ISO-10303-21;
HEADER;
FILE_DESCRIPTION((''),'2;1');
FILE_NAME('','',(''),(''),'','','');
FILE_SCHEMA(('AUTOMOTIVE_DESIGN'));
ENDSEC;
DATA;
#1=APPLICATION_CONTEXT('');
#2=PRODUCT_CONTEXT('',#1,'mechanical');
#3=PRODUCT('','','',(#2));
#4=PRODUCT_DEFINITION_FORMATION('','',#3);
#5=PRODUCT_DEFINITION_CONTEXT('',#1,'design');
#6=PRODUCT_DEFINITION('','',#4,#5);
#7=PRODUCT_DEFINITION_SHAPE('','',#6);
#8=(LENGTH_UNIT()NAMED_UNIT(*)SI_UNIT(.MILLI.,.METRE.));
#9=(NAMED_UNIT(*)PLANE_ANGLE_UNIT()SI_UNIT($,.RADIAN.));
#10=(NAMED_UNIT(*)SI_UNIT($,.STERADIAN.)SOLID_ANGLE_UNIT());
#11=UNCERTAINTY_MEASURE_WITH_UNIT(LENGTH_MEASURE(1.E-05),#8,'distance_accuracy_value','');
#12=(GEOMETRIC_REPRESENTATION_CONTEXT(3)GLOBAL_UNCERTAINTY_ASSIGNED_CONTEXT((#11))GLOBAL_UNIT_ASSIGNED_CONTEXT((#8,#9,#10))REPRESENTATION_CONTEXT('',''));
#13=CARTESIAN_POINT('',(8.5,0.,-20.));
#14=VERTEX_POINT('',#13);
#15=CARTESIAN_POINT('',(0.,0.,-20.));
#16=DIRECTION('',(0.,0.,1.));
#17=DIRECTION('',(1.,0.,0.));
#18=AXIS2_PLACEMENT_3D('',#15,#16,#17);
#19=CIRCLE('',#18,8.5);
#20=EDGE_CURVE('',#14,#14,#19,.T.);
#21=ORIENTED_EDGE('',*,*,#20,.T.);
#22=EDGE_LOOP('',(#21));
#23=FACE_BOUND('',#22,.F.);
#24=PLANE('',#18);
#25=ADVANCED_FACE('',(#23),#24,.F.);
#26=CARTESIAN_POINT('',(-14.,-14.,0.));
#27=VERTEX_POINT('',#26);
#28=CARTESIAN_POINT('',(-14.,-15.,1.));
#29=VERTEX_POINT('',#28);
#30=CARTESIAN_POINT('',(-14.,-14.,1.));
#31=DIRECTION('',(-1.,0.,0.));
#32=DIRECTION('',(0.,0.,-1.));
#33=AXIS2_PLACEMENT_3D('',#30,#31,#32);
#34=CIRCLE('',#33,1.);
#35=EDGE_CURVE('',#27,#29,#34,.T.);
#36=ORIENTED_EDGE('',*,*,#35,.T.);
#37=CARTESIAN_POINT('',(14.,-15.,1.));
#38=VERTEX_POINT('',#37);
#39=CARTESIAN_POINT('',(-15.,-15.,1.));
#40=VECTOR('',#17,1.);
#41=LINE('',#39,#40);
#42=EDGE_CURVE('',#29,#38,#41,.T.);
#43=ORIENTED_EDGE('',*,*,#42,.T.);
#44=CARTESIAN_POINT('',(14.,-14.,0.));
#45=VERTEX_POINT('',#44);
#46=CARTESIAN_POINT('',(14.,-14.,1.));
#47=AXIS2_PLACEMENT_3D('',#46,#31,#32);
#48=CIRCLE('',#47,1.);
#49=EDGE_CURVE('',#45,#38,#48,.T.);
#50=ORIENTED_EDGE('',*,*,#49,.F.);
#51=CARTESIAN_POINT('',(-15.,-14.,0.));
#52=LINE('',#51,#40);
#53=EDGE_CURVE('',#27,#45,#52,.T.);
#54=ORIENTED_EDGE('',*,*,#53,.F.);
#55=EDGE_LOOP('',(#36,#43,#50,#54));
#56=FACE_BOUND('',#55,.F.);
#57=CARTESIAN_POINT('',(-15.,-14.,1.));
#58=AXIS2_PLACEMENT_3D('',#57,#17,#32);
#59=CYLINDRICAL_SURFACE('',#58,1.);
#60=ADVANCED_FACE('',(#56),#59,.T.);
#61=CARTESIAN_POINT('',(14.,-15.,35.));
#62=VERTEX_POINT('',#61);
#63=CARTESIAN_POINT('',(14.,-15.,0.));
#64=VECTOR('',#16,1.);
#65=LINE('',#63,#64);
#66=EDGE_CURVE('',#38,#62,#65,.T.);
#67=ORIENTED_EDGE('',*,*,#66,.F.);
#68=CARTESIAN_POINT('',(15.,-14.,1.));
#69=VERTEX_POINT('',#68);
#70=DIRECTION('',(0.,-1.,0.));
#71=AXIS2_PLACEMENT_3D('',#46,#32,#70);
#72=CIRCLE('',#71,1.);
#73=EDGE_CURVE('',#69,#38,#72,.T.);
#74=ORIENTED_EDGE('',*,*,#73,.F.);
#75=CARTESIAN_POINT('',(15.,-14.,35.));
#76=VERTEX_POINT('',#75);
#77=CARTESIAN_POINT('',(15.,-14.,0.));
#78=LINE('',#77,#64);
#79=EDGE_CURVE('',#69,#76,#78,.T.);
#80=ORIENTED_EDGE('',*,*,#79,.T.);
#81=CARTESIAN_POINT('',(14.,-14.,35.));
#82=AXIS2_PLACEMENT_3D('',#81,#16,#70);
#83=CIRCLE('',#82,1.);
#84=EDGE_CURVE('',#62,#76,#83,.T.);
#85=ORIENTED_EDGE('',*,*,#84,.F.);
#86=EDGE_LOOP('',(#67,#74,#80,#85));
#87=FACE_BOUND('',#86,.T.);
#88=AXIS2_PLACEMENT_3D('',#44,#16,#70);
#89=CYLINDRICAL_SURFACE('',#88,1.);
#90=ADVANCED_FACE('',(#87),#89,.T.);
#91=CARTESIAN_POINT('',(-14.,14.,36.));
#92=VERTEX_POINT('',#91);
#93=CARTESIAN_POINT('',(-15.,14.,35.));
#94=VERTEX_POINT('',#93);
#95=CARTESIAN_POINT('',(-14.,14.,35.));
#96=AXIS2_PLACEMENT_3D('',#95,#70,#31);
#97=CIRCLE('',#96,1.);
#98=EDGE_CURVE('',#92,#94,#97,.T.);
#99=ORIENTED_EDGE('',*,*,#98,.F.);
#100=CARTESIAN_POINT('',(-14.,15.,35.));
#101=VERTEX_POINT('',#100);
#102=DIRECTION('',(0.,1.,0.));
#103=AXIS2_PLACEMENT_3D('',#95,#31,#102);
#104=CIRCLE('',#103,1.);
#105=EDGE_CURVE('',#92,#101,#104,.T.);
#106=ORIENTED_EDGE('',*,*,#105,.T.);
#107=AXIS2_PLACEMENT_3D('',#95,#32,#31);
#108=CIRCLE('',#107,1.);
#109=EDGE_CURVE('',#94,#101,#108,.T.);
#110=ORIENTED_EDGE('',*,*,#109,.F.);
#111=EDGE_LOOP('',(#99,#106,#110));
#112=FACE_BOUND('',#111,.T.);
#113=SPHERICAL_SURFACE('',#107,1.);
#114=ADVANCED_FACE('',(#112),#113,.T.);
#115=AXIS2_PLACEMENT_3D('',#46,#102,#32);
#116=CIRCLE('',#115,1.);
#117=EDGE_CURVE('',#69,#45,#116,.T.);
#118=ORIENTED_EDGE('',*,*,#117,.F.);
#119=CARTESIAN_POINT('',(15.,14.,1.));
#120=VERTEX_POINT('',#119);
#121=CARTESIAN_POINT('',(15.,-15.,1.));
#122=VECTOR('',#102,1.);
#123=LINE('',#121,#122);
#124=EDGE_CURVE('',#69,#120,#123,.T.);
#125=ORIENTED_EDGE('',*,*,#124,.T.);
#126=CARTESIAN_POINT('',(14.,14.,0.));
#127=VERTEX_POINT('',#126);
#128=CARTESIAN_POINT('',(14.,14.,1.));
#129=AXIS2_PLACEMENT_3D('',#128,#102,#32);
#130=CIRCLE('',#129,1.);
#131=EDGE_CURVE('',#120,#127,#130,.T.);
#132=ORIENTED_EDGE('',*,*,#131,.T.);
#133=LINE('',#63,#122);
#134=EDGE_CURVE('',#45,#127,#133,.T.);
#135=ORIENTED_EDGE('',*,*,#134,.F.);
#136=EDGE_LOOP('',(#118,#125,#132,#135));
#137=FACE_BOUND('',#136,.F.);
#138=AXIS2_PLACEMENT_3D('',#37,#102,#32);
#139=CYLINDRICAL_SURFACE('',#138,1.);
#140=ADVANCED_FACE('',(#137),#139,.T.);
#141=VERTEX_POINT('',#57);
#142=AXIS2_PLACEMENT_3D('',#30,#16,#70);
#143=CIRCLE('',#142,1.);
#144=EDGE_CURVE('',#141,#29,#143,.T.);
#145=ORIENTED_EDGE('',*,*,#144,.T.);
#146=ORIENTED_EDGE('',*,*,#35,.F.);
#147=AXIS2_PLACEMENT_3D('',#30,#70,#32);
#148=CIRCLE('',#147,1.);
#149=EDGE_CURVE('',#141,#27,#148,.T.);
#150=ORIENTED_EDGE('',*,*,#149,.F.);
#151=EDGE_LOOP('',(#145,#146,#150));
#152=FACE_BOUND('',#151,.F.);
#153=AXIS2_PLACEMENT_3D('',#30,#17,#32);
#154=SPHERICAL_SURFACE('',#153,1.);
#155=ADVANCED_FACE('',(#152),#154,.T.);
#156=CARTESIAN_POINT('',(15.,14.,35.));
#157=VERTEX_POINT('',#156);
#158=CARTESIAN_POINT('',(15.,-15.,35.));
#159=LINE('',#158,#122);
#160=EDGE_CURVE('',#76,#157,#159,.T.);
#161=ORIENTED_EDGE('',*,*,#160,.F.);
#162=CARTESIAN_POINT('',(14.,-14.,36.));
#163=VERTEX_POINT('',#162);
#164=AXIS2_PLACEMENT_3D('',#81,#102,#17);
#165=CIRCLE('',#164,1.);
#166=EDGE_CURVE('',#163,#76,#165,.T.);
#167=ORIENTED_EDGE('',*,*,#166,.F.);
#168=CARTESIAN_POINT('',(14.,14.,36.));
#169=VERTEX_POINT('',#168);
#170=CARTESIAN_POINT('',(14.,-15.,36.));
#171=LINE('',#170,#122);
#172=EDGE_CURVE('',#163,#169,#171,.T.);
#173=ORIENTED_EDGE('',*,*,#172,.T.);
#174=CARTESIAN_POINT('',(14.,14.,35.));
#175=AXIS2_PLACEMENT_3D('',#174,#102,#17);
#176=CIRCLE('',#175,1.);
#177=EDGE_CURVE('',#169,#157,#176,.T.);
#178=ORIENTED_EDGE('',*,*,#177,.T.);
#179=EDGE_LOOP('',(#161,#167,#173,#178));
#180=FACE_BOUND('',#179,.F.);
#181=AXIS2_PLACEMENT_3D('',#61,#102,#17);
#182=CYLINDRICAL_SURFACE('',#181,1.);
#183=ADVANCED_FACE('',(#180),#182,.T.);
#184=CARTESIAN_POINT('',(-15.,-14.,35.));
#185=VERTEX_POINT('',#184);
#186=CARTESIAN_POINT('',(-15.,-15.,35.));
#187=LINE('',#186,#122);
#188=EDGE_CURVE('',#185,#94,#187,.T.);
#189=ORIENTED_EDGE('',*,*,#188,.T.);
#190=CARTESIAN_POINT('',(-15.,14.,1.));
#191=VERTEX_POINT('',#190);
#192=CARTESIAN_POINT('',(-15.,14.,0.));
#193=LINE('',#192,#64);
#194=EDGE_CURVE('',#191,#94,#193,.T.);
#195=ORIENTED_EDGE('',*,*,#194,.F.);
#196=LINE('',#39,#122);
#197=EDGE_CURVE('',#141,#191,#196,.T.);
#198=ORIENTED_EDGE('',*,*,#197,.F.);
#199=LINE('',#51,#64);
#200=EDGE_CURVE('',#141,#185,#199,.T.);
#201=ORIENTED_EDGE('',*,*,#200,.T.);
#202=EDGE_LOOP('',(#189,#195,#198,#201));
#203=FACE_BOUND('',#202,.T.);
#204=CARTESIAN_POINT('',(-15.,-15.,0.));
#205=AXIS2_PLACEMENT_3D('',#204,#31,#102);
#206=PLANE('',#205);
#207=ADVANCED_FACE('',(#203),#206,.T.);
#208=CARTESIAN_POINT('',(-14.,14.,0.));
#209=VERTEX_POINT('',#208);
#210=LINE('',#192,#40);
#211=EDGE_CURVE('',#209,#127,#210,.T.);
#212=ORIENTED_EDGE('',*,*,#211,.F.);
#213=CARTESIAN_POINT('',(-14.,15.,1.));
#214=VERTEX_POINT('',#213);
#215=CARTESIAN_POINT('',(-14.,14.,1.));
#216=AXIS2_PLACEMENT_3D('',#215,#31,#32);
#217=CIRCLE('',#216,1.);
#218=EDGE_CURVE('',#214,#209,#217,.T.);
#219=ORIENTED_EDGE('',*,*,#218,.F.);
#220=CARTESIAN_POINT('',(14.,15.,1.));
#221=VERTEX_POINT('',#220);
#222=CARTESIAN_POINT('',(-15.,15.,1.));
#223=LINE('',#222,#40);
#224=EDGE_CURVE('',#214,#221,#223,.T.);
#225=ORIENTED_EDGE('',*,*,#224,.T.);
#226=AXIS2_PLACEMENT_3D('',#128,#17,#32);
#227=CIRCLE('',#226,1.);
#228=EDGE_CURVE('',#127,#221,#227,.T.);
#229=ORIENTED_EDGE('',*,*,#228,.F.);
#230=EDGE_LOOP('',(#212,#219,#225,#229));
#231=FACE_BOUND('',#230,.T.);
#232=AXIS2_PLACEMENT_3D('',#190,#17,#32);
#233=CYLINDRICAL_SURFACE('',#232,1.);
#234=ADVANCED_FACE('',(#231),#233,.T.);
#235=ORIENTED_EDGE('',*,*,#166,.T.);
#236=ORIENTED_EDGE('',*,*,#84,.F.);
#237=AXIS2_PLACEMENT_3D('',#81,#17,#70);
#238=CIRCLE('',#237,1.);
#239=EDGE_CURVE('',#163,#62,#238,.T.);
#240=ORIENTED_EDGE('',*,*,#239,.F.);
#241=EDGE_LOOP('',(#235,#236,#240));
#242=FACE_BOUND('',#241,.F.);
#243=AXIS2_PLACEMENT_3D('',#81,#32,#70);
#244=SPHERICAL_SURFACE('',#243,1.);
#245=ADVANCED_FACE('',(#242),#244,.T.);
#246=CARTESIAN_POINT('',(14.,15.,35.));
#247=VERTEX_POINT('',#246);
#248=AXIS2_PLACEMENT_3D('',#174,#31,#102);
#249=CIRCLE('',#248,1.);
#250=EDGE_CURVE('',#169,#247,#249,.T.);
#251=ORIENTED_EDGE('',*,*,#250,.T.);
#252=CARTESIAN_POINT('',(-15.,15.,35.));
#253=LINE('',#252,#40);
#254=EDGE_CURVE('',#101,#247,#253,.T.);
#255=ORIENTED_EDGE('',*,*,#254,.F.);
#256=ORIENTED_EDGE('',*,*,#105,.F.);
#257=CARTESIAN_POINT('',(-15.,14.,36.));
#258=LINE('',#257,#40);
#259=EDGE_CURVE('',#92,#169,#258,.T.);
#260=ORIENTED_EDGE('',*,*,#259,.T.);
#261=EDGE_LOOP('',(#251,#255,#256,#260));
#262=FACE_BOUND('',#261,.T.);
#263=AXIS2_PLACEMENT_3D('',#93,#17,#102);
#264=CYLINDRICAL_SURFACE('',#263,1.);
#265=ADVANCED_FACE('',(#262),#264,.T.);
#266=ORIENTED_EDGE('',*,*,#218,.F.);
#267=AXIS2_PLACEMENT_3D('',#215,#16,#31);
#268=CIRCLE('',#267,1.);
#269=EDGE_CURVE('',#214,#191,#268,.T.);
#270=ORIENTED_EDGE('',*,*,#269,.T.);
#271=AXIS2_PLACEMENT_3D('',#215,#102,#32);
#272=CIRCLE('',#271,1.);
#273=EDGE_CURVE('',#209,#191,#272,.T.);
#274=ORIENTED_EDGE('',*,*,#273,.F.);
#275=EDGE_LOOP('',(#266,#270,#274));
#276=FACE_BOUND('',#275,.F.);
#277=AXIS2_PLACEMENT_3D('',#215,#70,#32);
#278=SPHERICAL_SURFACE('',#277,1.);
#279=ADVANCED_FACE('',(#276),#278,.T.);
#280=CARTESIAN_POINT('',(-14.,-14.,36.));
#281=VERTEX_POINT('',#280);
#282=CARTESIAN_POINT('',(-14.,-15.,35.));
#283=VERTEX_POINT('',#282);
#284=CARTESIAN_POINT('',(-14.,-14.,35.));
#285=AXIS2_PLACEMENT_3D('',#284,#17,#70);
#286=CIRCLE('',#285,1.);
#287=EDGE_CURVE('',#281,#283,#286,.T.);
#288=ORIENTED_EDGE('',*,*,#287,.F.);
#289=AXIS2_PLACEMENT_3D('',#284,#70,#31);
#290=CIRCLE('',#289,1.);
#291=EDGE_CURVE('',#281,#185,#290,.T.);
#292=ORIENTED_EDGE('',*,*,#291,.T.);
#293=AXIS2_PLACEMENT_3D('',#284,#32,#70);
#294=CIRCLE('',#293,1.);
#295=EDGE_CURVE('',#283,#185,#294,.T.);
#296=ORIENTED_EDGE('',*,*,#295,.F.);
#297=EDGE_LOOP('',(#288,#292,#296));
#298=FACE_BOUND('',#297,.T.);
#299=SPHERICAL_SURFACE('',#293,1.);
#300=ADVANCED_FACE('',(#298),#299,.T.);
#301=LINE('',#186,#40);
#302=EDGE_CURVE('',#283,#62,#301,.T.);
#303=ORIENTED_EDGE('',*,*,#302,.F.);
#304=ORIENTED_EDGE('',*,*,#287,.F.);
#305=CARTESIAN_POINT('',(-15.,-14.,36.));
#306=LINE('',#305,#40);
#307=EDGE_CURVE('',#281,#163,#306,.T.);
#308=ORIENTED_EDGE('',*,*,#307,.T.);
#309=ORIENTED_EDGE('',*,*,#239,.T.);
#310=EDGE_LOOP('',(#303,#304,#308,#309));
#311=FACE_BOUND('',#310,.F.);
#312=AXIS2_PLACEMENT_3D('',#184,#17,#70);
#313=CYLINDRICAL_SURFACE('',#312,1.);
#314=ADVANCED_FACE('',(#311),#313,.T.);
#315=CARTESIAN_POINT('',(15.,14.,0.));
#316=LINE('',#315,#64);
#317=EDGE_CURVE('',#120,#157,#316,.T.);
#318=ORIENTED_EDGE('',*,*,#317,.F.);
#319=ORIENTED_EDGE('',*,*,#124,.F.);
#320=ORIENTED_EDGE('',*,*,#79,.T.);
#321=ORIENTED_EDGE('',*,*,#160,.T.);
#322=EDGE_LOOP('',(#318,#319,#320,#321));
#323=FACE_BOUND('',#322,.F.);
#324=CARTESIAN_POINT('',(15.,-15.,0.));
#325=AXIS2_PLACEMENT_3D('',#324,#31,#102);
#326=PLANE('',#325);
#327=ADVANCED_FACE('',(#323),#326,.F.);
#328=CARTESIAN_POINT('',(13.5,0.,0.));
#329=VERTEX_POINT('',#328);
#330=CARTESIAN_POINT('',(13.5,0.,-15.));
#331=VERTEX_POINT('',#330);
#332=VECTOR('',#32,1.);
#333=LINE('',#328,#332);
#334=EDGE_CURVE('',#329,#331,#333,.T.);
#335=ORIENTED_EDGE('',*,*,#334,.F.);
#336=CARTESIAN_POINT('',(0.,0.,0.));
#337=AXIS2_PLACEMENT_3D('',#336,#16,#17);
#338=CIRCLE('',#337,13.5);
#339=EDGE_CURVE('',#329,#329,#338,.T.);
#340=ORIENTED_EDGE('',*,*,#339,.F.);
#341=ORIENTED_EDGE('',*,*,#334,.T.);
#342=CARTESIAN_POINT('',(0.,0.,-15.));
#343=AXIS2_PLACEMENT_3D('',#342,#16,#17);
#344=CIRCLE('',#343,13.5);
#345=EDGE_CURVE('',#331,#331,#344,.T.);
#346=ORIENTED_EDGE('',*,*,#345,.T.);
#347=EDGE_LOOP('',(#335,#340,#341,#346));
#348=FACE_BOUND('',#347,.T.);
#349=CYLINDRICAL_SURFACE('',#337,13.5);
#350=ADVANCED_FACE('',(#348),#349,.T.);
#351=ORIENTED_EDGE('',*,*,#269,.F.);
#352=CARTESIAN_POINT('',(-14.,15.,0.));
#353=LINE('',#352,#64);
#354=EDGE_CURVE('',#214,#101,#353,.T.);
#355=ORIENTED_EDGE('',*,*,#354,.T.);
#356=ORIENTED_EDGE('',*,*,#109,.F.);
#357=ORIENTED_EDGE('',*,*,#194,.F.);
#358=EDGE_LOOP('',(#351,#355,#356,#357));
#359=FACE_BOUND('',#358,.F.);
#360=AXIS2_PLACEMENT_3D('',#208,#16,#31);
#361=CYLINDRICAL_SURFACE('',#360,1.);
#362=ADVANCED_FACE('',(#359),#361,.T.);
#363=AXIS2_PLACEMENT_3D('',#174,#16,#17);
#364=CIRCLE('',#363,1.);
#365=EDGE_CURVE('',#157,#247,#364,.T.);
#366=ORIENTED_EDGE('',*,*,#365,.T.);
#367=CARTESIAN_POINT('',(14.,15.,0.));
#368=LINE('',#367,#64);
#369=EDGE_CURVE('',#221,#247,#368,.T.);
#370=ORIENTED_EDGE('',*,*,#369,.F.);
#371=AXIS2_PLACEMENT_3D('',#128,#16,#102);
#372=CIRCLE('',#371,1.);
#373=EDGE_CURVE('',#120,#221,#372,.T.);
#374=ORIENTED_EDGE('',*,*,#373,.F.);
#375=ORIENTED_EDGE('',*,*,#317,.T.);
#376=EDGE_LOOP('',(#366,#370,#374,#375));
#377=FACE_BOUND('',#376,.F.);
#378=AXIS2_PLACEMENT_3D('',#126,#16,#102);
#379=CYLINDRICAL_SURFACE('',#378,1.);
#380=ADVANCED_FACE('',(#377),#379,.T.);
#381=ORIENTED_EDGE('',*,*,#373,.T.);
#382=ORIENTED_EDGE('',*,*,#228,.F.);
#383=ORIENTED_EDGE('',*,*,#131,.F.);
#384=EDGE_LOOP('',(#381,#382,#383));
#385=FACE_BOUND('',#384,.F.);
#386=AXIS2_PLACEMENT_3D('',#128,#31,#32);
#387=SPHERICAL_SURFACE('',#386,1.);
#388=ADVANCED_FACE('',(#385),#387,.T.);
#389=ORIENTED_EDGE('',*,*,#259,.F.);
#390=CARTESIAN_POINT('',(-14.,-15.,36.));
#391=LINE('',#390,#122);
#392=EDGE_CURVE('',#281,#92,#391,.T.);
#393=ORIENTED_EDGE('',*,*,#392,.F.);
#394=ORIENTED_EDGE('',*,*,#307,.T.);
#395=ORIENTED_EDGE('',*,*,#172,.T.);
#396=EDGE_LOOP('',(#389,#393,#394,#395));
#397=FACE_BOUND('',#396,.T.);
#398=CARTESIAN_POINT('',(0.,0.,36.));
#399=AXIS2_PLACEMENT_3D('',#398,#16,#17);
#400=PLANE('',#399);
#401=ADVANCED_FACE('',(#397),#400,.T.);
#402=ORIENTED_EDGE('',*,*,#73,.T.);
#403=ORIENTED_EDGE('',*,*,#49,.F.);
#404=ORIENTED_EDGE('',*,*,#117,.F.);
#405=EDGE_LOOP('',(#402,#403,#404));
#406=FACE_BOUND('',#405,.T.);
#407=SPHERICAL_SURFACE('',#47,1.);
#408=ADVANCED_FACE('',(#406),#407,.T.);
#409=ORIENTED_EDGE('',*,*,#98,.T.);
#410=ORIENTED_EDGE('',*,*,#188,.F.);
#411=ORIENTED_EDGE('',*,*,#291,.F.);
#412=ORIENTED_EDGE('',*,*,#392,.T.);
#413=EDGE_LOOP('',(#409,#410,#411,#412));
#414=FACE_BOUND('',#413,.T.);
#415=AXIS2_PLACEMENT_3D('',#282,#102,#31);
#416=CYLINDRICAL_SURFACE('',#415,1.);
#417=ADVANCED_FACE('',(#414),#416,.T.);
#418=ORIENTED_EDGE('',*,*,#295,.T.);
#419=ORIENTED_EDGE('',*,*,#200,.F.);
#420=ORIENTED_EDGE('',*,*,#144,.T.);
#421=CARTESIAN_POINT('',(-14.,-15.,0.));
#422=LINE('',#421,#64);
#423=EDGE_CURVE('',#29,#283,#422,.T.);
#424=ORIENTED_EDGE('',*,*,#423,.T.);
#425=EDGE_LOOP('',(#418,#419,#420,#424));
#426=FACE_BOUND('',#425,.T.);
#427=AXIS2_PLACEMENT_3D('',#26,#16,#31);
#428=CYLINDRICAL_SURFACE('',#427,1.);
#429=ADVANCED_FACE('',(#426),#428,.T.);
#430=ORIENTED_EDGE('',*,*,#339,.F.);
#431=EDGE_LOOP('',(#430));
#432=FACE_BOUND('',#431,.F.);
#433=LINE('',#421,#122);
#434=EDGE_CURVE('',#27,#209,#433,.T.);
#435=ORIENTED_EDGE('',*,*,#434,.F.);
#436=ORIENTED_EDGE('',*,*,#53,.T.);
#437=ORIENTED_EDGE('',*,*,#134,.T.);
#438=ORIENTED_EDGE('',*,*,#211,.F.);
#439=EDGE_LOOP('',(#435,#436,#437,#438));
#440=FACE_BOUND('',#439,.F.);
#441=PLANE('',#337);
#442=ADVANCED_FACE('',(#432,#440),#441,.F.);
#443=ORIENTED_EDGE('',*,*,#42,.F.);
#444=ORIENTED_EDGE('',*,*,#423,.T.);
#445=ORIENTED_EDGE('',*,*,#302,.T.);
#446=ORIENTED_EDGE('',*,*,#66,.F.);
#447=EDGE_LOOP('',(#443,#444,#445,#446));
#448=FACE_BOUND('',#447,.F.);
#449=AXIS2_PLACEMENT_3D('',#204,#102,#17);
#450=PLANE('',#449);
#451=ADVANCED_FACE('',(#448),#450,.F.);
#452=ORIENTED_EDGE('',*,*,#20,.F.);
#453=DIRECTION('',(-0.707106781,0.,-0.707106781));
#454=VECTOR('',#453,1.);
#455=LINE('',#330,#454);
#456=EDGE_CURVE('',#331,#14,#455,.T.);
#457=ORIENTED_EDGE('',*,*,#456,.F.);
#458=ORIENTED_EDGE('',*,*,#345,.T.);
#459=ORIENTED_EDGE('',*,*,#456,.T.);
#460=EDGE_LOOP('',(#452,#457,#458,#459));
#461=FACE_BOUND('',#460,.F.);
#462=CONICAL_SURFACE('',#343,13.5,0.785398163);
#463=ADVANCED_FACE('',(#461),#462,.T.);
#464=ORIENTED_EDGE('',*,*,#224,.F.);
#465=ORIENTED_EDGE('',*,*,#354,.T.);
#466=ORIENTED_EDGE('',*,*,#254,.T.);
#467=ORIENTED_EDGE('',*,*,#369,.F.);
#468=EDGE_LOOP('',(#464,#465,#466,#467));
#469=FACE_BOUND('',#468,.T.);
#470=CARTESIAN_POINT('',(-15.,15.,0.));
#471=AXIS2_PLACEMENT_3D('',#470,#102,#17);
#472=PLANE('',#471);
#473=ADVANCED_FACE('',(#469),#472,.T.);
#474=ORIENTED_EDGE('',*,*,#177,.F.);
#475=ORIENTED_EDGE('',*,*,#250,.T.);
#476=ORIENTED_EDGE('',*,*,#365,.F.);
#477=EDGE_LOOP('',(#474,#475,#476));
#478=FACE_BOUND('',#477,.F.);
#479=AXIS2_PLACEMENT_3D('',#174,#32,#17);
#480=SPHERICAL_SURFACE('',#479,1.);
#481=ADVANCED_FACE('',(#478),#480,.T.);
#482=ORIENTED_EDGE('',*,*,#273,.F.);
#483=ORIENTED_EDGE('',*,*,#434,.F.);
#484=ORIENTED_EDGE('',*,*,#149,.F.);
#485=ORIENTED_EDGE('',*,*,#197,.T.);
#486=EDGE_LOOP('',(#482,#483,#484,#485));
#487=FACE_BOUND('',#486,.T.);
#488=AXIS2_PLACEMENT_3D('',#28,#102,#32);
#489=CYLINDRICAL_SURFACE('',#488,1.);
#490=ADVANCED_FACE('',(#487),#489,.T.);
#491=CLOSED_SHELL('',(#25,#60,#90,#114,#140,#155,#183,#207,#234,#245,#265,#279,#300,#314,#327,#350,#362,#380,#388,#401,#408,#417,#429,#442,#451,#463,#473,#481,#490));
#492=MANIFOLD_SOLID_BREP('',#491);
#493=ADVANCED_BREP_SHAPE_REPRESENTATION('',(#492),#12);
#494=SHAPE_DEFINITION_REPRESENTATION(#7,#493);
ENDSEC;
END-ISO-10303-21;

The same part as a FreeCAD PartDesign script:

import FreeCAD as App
import Part
import Sketcher
Q = App.Units.Quantity


def edges_at(feature, points):
    """Names of the edges that pass closest to the given points."""
    edges = feature.Shape.Edges
    near = lambda p: min(range(len(edges)), key=lambda i: edges[i].distToShape(Part.Vertex(*p))[0])
    return sorted({f"Edge{near(p) + 1}" for p in points})


def add_polygon(sketch, points):
    """Adds a closed chain of lines whose ends are joined by coincident constraints."""
    first, n = sketch.GeometryCount, len(points)
    for a, b in zip(points, points[1:] + points[:1]):
        sketch.addGeometry(Part.LineSegment(App.Vector(*a, 0), App.Vector(*b, 0)), False)
    for i in range(n):
        sketch.addConstraint(Sketcher.Constraint("Coincident", first + i, 2, first + (i + 1) % n, 1))

doc = App.newDocument("Part")
body = doc.addObject("PartDesign::Body", "Body")

# Sketch on XY plane
sketch1 = body.newObject("Sketcher::SketchObject", "Sketch")
sketch1.AttachmentSupport = (doc.getObject("XY_Plane"), [""])
sketch1.MapMode = "FlatFace"
add_polygon(sketch1, [(-15, 15), (-15, -15), (15, -15), (15, 15)])  # lines 0-3
sketch1.addConstraint([
    Sketcher.Constraint("Vertical", 0),
    Sketcher.Constraint("Horizontal", 1),
    Sketcher.Constraint("Vertical", 2),
    Sketcher.Constraint("Horizontal", 3),
    Sketcher.Constraint("Symmetric", 0, 2, 2, 2, -1, 1),
    Sketcher.Constraint("Equal", 3, 0),
    Sketcher.Constraint("DistanceX", 1, 1, 1, 2, Q("30 mm")),
])
pad1 = body.newObject("PartDesign::Pad", "Pad")
pad1.Profile = sketch1
pad1.Length = 36

# Sketch on XY plane
sketch2 = body.newObject("Sketcher::SketchObject", "Sketch001")
sketch2.AttachmentSupport = (doc.getObject("XY_Plane"), [""])
sketch2.MapMode = "FlatFace"
sketch2.addGeometry(Part.Circle(App.Vector(0, 0, 0), App.Vector(0, 0, 1), 14), False)
sketch2.addConstraint([
    Sketcher.Constraint("Coincident", 0, 3, -1, 1),
    Sketcher.Constraint("Diameter", 0, Q("27 mm")),
])
pad2 = body.newObject("PartDesign::Pad", "Pad001")
pad2.Profile = sketch2
pad2.Length = 20
pad2.Reversed = True
doc.recompute()

chamfer = body.newObject("PartDesign::Chamfer", "Chamfer")
chamfer.Base = (pad2, edges_at(pad2, [(-13.5, 0, -20)]))
chamfer.Size = 5
doc.recompute()

fillet = body.newObject("PartDesign::Fillet", "Fillet")
fillet.Base = (chamfer, edges_at(chamfer, [
    (0, -15, 0),
    (-15, 0, 0),
    (0, 15, 0),
    (15, 0, 0),
    (15, -15, 18),
    (-15, -15, 18),
    (-15, 15, 18),
    (15, 15, 18),
    (0, -15, 36),
    (-15, 0, 36),
    (15, 0, 36),
    (0, 15, 36),
]))
fillet.Radius = 1

doc.recompute()
